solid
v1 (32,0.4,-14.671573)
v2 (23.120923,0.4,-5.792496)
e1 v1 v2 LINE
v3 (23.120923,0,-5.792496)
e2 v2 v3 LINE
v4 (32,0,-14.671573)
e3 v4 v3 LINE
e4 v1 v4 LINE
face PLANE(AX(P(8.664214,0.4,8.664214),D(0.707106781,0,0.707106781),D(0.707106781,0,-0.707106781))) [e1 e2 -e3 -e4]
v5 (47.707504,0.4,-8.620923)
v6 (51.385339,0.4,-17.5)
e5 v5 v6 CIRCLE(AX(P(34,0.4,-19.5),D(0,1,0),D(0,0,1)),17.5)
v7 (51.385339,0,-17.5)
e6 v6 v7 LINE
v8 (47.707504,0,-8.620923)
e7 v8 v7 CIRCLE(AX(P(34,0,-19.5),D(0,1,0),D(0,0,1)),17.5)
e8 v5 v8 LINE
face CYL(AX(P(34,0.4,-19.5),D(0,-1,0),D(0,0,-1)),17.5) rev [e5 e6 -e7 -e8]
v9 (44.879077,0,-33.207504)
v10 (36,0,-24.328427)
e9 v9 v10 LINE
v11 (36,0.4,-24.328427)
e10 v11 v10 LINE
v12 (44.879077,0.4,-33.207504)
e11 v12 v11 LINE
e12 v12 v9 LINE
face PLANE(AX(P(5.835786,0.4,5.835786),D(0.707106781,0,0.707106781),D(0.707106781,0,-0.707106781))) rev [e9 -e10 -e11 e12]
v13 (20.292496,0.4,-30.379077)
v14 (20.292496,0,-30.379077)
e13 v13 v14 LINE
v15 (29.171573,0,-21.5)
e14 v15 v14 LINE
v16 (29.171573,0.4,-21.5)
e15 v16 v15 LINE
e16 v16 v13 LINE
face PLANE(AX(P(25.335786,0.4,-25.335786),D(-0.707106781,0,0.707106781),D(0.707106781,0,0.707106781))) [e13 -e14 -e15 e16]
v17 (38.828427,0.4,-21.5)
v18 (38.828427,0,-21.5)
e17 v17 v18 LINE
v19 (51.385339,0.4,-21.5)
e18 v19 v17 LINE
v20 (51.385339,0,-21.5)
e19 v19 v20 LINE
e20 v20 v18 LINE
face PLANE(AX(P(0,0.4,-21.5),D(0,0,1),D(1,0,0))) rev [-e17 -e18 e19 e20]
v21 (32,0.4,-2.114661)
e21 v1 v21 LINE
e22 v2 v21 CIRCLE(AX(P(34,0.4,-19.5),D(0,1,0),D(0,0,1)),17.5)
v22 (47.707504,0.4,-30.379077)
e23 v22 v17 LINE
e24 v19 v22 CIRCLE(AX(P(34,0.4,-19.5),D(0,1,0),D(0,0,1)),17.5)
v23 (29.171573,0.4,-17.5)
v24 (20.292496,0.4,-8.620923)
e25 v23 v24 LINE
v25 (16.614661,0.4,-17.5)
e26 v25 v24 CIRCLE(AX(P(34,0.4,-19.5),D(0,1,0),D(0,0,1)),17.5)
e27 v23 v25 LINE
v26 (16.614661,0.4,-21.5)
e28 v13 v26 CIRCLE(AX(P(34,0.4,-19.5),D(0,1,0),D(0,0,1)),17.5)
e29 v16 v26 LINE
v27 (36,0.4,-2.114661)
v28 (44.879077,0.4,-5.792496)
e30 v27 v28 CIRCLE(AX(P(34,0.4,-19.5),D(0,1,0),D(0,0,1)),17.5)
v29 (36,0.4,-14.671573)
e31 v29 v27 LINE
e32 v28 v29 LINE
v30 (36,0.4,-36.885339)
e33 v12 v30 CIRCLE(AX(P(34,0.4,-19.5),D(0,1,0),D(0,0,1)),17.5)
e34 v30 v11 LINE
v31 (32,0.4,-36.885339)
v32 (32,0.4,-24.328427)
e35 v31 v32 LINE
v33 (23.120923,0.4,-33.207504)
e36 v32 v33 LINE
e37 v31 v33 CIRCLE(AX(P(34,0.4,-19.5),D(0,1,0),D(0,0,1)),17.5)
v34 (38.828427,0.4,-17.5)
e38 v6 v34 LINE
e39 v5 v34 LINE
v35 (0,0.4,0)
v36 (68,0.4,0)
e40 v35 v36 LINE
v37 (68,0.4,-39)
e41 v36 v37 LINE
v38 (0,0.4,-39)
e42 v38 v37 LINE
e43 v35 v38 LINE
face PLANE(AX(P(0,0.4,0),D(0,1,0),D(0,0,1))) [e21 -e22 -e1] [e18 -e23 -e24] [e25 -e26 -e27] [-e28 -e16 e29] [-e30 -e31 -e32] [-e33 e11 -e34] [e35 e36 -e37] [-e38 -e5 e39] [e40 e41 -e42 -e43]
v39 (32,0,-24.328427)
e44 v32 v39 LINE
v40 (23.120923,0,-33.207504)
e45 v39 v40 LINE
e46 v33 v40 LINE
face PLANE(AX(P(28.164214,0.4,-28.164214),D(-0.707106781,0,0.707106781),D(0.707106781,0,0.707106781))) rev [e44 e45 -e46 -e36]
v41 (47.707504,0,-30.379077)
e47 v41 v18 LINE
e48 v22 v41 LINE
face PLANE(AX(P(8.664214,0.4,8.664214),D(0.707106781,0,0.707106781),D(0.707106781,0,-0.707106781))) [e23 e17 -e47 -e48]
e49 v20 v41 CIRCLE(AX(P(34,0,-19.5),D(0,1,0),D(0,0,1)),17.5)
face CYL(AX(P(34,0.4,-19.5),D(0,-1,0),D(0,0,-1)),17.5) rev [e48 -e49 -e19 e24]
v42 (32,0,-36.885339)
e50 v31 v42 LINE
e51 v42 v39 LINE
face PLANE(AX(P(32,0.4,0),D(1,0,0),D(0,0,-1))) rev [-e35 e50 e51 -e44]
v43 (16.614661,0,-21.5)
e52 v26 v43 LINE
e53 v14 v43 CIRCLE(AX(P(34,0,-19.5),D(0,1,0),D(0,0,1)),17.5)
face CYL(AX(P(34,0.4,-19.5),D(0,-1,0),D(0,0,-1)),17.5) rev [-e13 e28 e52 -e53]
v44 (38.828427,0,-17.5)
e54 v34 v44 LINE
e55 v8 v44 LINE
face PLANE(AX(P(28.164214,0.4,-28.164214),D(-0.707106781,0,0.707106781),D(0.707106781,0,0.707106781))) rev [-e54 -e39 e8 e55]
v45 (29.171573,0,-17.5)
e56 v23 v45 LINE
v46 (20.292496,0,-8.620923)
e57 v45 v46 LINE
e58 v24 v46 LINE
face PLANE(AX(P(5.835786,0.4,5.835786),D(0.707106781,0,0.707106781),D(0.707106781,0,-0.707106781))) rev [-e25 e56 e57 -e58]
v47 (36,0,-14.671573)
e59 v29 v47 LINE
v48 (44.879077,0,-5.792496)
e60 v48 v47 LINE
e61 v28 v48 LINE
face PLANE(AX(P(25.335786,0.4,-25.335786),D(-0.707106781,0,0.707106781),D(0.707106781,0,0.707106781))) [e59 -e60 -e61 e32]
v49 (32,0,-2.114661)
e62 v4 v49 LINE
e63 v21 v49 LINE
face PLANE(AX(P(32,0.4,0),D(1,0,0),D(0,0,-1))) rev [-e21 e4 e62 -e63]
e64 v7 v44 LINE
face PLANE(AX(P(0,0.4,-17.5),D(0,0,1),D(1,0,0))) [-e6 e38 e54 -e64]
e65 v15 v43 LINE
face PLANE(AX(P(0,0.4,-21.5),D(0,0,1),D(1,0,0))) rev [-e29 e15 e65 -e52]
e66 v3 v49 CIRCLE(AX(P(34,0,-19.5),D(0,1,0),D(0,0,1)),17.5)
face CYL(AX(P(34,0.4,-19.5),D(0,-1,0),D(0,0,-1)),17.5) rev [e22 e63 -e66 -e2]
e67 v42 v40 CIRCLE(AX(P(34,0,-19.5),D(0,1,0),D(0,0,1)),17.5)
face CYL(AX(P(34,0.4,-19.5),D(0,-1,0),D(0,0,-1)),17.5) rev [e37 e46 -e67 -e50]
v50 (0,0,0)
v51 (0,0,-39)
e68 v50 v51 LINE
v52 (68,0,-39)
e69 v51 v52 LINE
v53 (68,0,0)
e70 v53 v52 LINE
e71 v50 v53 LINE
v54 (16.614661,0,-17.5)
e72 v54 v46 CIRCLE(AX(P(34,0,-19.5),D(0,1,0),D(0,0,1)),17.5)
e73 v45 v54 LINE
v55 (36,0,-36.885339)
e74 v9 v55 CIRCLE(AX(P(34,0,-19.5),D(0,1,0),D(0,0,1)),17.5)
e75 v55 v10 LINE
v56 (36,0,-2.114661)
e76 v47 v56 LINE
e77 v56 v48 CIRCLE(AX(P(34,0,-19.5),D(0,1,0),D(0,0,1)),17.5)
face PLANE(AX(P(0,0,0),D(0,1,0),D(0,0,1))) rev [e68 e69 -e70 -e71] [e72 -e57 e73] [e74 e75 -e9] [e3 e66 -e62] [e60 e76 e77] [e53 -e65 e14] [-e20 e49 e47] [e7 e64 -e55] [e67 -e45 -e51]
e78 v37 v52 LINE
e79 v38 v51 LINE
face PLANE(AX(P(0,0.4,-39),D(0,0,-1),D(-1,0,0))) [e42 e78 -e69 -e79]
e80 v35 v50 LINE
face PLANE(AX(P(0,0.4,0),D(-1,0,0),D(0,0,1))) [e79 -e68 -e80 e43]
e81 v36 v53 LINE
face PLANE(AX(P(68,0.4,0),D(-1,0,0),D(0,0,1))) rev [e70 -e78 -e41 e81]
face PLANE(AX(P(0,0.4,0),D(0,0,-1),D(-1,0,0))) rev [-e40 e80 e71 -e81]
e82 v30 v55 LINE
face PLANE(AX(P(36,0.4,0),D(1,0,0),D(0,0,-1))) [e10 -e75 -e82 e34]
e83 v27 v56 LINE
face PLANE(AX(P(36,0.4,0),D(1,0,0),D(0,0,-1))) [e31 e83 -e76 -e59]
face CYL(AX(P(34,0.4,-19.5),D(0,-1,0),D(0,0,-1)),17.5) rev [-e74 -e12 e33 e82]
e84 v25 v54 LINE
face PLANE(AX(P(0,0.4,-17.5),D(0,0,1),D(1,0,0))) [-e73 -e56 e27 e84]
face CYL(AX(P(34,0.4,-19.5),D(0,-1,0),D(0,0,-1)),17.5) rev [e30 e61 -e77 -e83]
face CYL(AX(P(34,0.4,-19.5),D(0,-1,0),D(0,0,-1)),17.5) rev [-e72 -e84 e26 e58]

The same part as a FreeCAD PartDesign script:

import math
import FreeCAD as App
import Part
import Sketcher

doc = App.newDocument("Part")
body = doc.addObject("PartDesign::Body", "Body")

sketch1 = doc.addObject("Sketcher::SketchObject", "Sketch")
body.addObject(sketch1)
sketch1.AttachmentSupport = (doc.XZ_Plane, [""])
sketch1.MapMode = "FlatFace"
sketch1.addGeometry([
    Part.LineSegment(App.Vector(0, -39, 0), App.Vector(0, 0, 0)),
    Part.LineSegment(App.Vector(0, 0, 0), App.Vector(68, 0, 0)),
    Part.LineSegment(App.Vector(68, 0, 0), App.Vector(68, -39, 0)),
    Part.LineSegment(App.Vector(68, -39, 0), App.Vector(0, -39, 0)),
    Part.ArcOfCircle(Part.Circle(App.Vector(34, -20, 0), App.Vector(0, 0, 1), 18), math.radians(97), math.radians(128)),
    Part.LineSegment(App.Vector(23, -6, 0), App.Vector(32, -15, 0)),
    Part.LineSegment(App.Vector(32, -15, 0), App.Vector(32, -2, 0)),
    Part.ArcOfCircle(Part.Circle(App.Vector(34, -20, 0), App.Vector(0, 0, 1), 18), math.radians(142), math.radians(173)),
    Part.LineSegment(App.Vector(17, -18, 0), App.Vector(29, -18, 0)),
    Part.LineSegment(App.Vector(29, -18, 0), App.Vector(20, -9, 0)),
    Part.ArcOfCircle(Part.Circle(App.Vector(34, -20, 0), App.Vector(0, 0, 1), 18), math.radians(52), math.radians(83)),
    Part.LineSegment(App.Vector(36, -2, 0), App.Vector(36, -15, 0)),
    Part.LineSegment(App.Vector(36, -15, 0), App.Vector(45, -6, 0)),
    Part.ArcOfCircle(Part.Circle(App.Vector(34, -20, 0), App.Vector(0, 0, 1), 18), math.radians(7), math.radians(38)),
    Part.LineSegment(App.Vector(48, -9, 0), App.Vector(39, -18, 0)),
    Part.LineSegment(App.Vector(39, -18, 0), App.Vector(51, -18, 0)),
    Part.ArcOfCircle(Part.Circle(App.Vector(34, -19, 0), App.Vector(0, 0, 1), 18), math.radians(-173), math.radians(-142)),
    Part.LineSegment(App.Vector(20, -30, 0), App.Vector(29, -22, 0)),
    Part.LineSegment(App.Vector(29, -22, 0), App.Vector(17, -22, 0)),
    Part.ArcOfCircle(Part.Circle(App.Vector(34, -19, 0), App.Vector(0, 0, 1), 18), math.radians(-128), math.radians(-97)),
    Part.LineSegment(App.Vector(32, -37, 0), App.Vector(32, -24, 0)),
    Part.LineSegment(App.Vector(32, -24, 0), App.Vector(23, -33, 0)),
    Part.ArcOfCircle(Part.Circle(App.Vector(34, -19, 0), App.Vector(0, 0, 1), 18), math.radians(-38), math.radians(-7)),
    Part.LineSegment(App.Vector(51, -22, 0), App.Vector(39, -22, 0)),
    Part.LineSegment(App.Vector(39, -22, 0), App.Vector(48, -30, 0)),
    Part.ArcOfCircle(Part.Circle(App.Vector(34, -19, 0), App.Vector(0, 0, 1), 18), math.radians(-83), math.radians(-52)),
    Part.LineSegment(App.Vector(45, -33, 0), App.Vector(36, -24, 0)),
    Part.LineSegment(App.Vector(36, -24, 0), App.Vector(36, -37, 0)),
], False)
sketch1.addConstraint([
    Sketcher.Constraint("Coincident", 0, 2, 1, 1),
    Sketcher.Constraint("Coincident", 1, 2, 2, 1),
    Sketcher.Constraint("Coincident", 2, 2, 3, 1),
    Sketcher.Constraint("Coincident", 3, 2, 0, 1),
    Sketcher.Constraint("Coincident", 4, 2, 5, 1),
    Sketcher.Constraint("Coincident", 5, 2, 6, 1),
    Sketcher.Constraint("Coincident", 6, 2, 4, 1),
    Sketcher.Constraint("Coincident", 7, 2, 8, 1),
    Sketcher.Constraint("Coincident", 8, 2, 9, 1),
    Sketcher.Constraint("Coincident", 9, 2, 7, 1),
    Sketcher.Constraint("Coincident", 10, 2, 11, 1),
    Sketcher.Constraint("Coincident", 11, 2, 12, 1),
    Sketcher.Constraint("Coincident", 12, 2, 10, 1),
    Sketcher.Constraint("Coincident", 13, 2, 14, 1),
    Sketcher.Constraint("Coincident", 14, 2, 15, 1),
    Sketcher.Constraint("Coincident", 15, 2, 13, 1),
    Sketcher.Constraint("Coincident", 16, 2, 17, 1),
    Sketcher.Constraint("Coincident", 17, 2, 18, 1),
    Sketcher.Constraint("Coincident", 18, 2, 16, 1),
    Sketcher.Constraint("Coincident", 19, 2, 20, 1),
    Sketcher.Constraint("Coincident", 20, 2, 21, 1),
    Sketcher.Constraint("Coincident", 21, 2, 19, 1),
    Sketcher.Constraint("Coincident", 22, 2, 23, 1),
    Sketcher.Constraint("Coincident", 23, 2, 24, 1),
    Sketcher.Constraint("Coincident", 24, 2, 22, 1),
    Sketcher.Constraint("Coincident", 25, 2, 26, 1),
    Sketcher.Constraint("Coincident", 26, 2, 27, 1),
    Sketcher.Constraint("Coincident", 27, 2, 25, 1),
    Sketcher.Constraint("Vertical", 0),
    Sketcher.Constraint("Horizontal", 1),
    Sketcher.Constraint("Vertical", 2),
    Sketcher.Constraint("Horizontal", 3),
    Sketcher.Constraint("Vertical", 6),
    Sketcher.Constraint("Horizontal", 8),
    Sketcher.Constraint("Vertical", 11),
    Sketcher.Constraint("Horizontal", 15),
    Sketcher.Constraint("Horizontal", 18),
    Sketcher.Constraint("Vertical", 20),
    Sketcher.Constraint("Horizontal", 23),
    Sketcher.Constraint("Vertical", 27),
    Sketcher.Constraint("Coincident", 0, 2, -1, 1),
    Sketcher.Constraint("Coincident", 7, 3, 4, 3),
    Sketcher.Constraint("Coincident", 10, 3, 4, 3),
    Sketcher.Constraint("Coincident", 13, 3, 4, 3),
    Sketcher.Constraint("Coincident", 16, 3, 4, 3),
    Sketcher.Constraint("Coincident", 19, 3, 4, 3),
    Sketcher.Constraint("Coincident", 22, 3, 4, 3),
    Sketcher.Constraint("Coincident", 25, 3, 4, 3),
    Sketcher.Constraint("Equal", 4, 7),
    Sketcher.Constraint("Equal", 7, 10),
    Sketcher.Constraint("Equal", 10, 13),
    Sketcher.Constraint("Equal", 13, 16),
    Sketcher.Constraint("Equal", 16, 19),
    Sketcher.Constraint("Equal", 19, 22),
    Sketcher.Constraint("Equal", 22, 25),
    Sketcher.Constraint("Parallel", 5, 9),
    Sketcher.Constraint("Perpendicular", 9, 12),
    Sketcher.Constraint("Parallel", 12, 14),
    Sketcher.Constraint("Parallel", 14, 17),
    Sketcher.Constraint("Parallel", 17, 21),
    Sketcher.Constraint("Perpendicular", 21, 24),
    Sketcher.Constraint("Parallel", 24, 26),
    Sketcher.Constraint("Horizontal", 6, 2, 10, 2),
    Sketcher.Constraint("Horizontal", 5, 2, 11, 2),
    Sketcher.Constraint("Horizontal", 4, 2, 12, 2),
    Sketcher.Constraint("Horizontal", 9, 2, 13, 2),
    Sketcher.Constraint("Horizontal", 8, 2, 14, 2),
    Sketcher.Constraint("Horizontal", 18, 2, 22, 2),
    Sketcher.Constraint("Horizontal", 16, 2, 24, 2),
    Sketcher.Constraint("Horizontal", 21, 2, 25, 2),
    Sketcher.Constraint("Horizontal", 20, 2, 26, 2),
    Sketcher.Constraint("Vertical", 9, 2, 16, 2),
    Sketcher.Constraint("Vertical", 8, 2, 17, 2),
    Sketcher.Constraint("Vertical", 6, 2, 19, 2),
    Sketcher.Constraint("Vertical", 4, 2, 21, 2),
    Sketcher.Constraint("Equal", 23, 6),
    Sketcher.Constraint("Equal", 5, 9),
    Sketcher.Constraint("Radius", 4, 17.5),
    Sketcher.Constraint("DistanceX", 1, 1, 1, 2, 68.0),
    Sketcher.Constraint("DistanceY", 0, 1, 0, 2, 39.0),
    Sketcher.Constraint("DistanceX", -1, 1, 4, 3, 34.0),
    Sketcher.Constraint("DistanceX", -1, 1, 5, 2, 32.0),
    Sketcher.Constraint("DistanceY", 4, 3, -1, 1, 19.5),
    Sketcher.Constraint("DistanceX", 8, 1, 8, 2, 12.556912),
])
pad1 = doc.addObject("PartDesign::Pad", "Pad")
body.addObject(pad1)
pad1.Profile = sketch1
pad1.Length = 0.4
pad1.Reversed = True

doc.recompute()
